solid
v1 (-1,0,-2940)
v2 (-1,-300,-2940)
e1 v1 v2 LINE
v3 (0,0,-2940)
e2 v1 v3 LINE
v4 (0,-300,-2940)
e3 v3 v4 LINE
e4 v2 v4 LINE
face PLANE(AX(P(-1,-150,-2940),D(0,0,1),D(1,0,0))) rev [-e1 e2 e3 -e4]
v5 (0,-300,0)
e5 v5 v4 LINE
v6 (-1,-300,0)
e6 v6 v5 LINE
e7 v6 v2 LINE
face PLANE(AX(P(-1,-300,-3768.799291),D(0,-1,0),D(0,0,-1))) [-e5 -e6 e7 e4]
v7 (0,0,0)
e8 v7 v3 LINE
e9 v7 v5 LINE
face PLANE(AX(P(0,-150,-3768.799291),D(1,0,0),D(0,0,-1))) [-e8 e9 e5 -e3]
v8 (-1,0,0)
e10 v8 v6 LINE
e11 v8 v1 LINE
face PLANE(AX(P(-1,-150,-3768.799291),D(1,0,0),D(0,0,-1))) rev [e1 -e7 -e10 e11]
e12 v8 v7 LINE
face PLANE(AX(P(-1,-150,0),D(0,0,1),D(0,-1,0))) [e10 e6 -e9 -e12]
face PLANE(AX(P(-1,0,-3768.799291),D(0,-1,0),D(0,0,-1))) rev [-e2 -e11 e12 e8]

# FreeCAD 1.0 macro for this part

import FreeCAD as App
import Part
import Sketcher

V = App.Vector
Q = App.Units.Quantity


def add_polygon(sketch, points):
    """Adds a closed chain of lines whose ends are joined by coincident constraints."""
    first, n = sketch.GeometryCount, len(points)
    for a, b in zip(points, points[1:] + points[:1]):
        sketch.addGeometry(Part.LineSegment(App.Vector(*a, 0), App.Vector(*b, 0)), False)
    for i in range(n):
        sketch.addConstraint(Sketcher.Constraint("Coincident", first + i, 2, first + (i + 1) % n, 1))

doc = App.newDocument("Part")
body = doc.addObject("PartDesign::Body", "Body")

# Sketch on YZ plane
sketch1 = doc.addObject("Sketcher::SketchObject", "Sketch")
body.addObject(sketch1)
sketch1.AttachmentSupport = (doc.YZ_Plane, [""])
sketch1.MapMode = "FlatFace"
add_polygon(sketch1, [(0, 0), (-300, 0), (-300, -2940), (0, -2940)])  # lines 0-3
sketch1.addConstraint([
    Sketcher.Constraint("Horizontal", 0),
    Sketcher.Constraint("Vertical", 1),
    Sketcher.Constraint("Horizontal", 2),
    Sketcher.Constraint("Vertical", 3),
    Sketcher.Constraint("Coincident", 3, 2, -1, 1),
    Sketcher.Constraint("DistanceX", 0, 2, 0, 1, Q("300 mm")),
    Sketcher.Constraint("DistanceY", 1, 2, 1, 1, Q("2940 mm")),
])
pad1 = doc.addObject("PartDesign::Pad", "Pad")
body.addObject(pad1)
pad1.Profile = sketch1
pad1.Length = 1
pad1.Reversed = True

doc.recompute()
